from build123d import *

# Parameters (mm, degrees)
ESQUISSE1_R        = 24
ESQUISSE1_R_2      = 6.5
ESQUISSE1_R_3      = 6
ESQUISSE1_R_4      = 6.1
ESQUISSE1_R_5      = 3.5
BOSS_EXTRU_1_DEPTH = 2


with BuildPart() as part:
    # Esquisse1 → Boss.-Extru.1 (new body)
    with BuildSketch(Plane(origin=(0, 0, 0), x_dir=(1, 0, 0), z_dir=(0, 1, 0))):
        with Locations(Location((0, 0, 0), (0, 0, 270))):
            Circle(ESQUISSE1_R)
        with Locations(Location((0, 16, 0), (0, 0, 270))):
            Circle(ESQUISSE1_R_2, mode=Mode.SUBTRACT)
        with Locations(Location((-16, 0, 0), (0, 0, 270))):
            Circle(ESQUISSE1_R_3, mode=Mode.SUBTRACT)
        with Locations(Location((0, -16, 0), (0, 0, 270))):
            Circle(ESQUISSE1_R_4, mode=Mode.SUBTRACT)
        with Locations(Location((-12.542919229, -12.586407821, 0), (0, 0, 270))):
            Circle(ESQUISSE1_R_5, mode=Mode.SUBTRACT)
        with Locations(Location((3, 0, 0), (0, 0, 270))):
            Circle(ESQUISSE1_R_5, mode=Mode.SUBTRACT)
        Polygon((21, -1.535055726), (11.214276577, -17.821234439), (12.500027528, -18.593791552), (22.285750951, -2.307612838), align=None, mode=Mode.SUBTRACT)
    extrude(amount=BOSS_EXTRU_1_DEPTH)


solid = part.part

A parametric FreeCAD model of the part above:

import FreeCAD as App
import Part
import Sketcher
Q = App.Units.Quantity

doc = App.newDocument("Part")
params = doc.addObject("Spreadsheet::Sheet", "Params")
for row, (alias, value) in enumerate([
    ("sketch1_diameter", "48 mm"),
    ("sketch1_diameter2", "13 mm"),
    ("sketch1_diameter3", "12 mm"),
    ("sketch1_diameter4", "7 mm"),
    ("sketch1_diameter5", "12.2 mm"),
    ("pad1_length", "2 mm"),
], start=1):
    params.set(f"A{row}", alias)
    params.set(f"B{row}", "=" + value)
    params.setAlias(f"B{row}", alias)

body = doc.addObject("PartDesign::Body", "Body")

# Sketch on XZ plane
sketch1 = doc.addObject("Sketcher::SketchObject", "Sketch")
body.addObject(sketch1)
sketch1.AttachmentSupport = (doc.XZ_Plane, [""])
sketch1.MapMode = "FlatFace"
sketch1.addGeometry([
    Part.Circle(App.Vector(0, 0, 0), App.Vector(0, 0, 1), 24),  # 0
    Part.Circle(App.Vector(0, -16, 0), App.Vector(0, 0, 1), 6.5),  # 1
    Part.Circle(App.Vector(-16, 0, 0), App.Vector(0, 0, 1), 6),  # 2
    Part.Circle(App.Vector(-12.5, 12.6, 0), App.Vector(0, 0, 1), 3.5),  # 3
    Part.Circle(App.Vector(0, 16, 0), App.Vector(0, 0, 1), 6.1),  # 4
    Part.Circle(App.Vector(3, 0, 0), App.Vector(0, 0, 1), 3.5),  # 5
    Part.LineSegment(App.Vector(11.2, 17.8, 0), App.Vector(21, 1.5, 0)),  # 6
    Part.LineSegment(App.Vector(21, 1.5, 0), App.Vector(22.3, 2.3, 0)),  # 7
    Part.LineSegment(App.Vector(22.3, 2.3, 0), App.Vector(12.5, 18.6, 0)),  # 8
    Part.LineSegment(App.Vector(12.5, 18.6, 0), App.Vector(11.2, 17.8, 0)),  # 9
], False)
sketch1.addConstraint([
    Sketcher.Constraint("Coincident", 6, 2, 7, 1),
    Sketcher.Constraint("Coincident", 7, 2, 8, 1),
    Sketcher.Constraint("Coincident", 8, 2, 9, 1),
    Sketcher.Constraint("Coincident", 9, 2, 6, 1),
    Sketcher.Constraint("Coincident", 0, 3, -1, 1),
    Sketcher.Constraint("Equal", 3, 5),
    Sketcher.Constraint("Symmetric", 1, 3, 4, 3, -1, 1),
    Sketcher.Constraint("PointOnObject", 1, 3, -2),
    Sketcher.Constraint("PointOnObject", 2, 3, -1),
    Sketcher.Constraint("PointOnObject", 5, 3, -1),
    Sketcher.Constraint("Perpendicular", 6, 7),
    Sketcher.Constraint("Perpendicular", 7, 8),
    Sketcher.Constraint("Perpendicular", 8, 9),
    Sketcher.Constraint("Diameter", 0, 48.0),
    Sketcher.Constraint("Diameter", 1, 13.0),
    Sketcher.Constraint("Diameter", 2, 12.0),
    Sketcher.Constraint("Diameter", 3, 7.0),
    Sketcher.Constraint("Diameter", 4, 12.2),
    Sketcher.Constraint("Angle", 6, Q("-59 deg")),
    Sketcher.Constraint("Distance", 6, 19.0),
    Sketcher.Constraint("DistanceY", 1, 3, -1, 1, 16.0),
    Sketcher.Constraint("DistanceX", 2, 3, -1, 1, 16.0),
    Sketcher.Constraint("DistanceX", -1, 1, 5, 3, 3.0),
    Sketcher.Constraint("DistanceX", -1, 1, 6, 2, 21.0),
    Sketcher.Constraint("Distance", 7, 1.5),
    Sketcher.Constraint("DistanceX", 3, 3, -1, 1, 12.542919),
    Sketcher.Constraint("DistanceY", -1, 1, 8, 2, 18.593792),
    Sketcher.Constraint("DistanceY", -1, 1, 3, 3, 12.586408),
])
sketch1.setExpression("Constraints[13]", "Params.sketch1_diameter")
sketch1.setExpression("Constraints[14]", "Params.sketch1_diameter2")
sketch1.setExpression("Constraints[15]", "Params.sketch1_diameter3")
sketch1.setExpression("Constraints[16]", "Params.sketch1_diameter4")
sketch1.setExpression("Constraints[17]", "Params.sketch1_diameter5")
pad1 = doc.addObject("PartDesign::Pad", "Pad")
body.addObject(pad1)
pad1.Profile = sketch1
pad1.setExpression("Length", "Params.pad1_length")
pad1.Reversed = True

doc.recompute()
